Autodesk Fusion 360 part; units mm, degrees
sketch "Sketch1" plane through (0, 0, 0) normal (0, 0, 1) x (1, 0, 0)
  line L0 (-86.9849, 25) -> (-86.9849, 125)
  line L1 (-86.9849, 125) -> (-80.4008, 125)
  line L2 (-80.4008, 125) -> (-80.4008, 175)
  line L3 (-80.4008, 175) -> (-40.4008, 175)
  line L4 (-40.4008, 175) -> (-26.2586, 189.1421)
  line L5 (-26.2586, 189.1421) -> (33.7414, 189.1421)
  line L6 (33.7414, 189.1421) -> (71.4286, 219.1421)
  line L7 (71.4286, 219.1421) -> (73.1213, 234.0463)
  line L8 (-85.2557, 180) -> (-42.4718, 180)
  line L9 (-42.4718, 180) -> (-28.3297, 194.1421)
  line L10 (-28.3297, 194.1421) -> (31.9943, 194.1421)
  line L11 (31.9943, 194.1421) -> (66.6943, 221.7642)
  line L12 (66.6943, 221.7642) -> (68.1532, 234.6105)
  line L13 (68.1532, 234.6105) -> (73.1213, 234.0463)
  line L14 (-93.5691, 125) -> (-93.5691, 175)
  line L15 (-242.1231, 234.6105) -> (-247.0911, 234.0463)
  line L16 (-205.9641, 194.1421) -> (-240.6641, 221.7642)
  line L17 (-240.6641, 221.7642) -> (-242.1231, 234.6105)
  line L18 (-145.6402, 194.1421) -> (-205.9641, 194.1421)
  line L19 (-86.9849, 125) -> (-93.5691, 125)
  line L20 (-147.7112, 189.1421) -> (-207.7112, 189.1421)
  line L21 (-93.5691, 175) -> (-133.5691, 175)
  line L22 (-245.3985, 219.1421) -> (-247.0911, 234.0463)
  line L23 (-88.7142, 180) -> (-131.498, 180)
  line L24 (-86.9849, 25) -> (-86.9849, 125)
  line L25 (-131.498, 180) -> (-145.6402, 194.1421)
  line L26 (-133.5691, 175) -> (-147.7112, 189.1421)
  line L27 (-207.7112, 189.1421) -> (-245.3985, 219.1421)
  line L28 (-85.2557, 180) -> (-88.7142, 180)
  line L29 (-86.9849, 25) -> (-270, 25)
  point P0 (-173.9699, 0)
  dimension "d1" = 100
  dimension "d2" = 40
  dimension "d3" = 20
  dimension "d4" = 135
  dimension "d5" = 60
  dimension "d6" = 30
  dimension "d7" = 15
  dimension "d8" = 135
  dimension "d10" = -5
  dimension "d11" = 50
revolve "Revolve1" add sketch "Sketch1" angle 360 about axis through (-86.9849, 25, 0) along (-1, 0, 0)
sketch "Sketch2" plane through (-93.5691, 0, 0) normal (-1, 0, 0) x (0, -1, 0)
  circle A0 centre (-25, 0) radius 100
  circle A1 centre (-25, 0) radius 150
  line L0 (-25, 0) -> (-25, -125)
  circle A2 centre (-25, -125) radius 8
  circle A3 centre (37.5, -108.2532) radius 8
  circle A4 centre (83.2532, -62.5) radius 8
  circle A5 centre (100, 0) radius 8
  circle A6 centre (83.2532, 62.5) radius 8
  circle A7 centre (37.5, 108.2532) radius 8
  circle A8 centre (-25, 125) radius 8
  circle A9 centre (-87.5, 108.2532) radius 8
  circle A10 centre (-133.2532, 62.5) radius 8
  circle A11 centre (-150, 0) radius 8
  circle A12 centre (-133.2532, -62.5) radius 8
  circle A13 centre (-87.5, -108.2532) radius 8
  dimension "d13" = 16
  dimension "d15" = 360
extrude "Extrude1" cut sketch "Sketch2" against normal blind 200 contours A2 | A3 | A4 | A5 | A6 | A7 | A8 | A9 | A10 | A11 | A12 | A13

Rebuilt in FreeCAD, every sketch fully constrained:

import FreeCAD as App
import Part
import Sketcher

V = App.Vector
Q = App.Units.Quantity

doc = App.newDocument("Part")
body = doc.addObject("PartDesign::Body", "Body")

# Sketch on XY plane
sketch1 = body.newObject("Sketcher::SketchObject", "Sketch")
sketch1.AttachmentSupport = (doc.getObject("XY_Plane"), [""])
sketch1.MapMode = "FlatFace"
sketch1.addGeometry([
    Part.LineSegment(V(-93.6, 125, 0), V(-80.4, 125, 0)),  # 0
    Part.LineSegment(V(-80.4, 125, 0), V(-80.4, 175, 0)),  # 1
    Part.LineSegment(V(-80.4, 175, 0), V(-40.4, 175, 0)),  # 2
    Part.LineSegment(V(-40.4, 175, 0), V(-26.3, 189.1, 0)),  # 3
    Part.LineSegment(V(-26.3, 189.1, 0), V(33.7, 189.1, 0)),  # 4
    Part.LineSegment(V(33.7, 189.1, 0), V(71.4, 219.1, 0)),  # 5
    Part.LineSegment(V(71.4, 219.1, 0), V(73.1, 234, 0)),  # 6
    Part.LineSegment(V(73.1, 234, 0), V(68.2, 234.6, 0)),  # 7
    Part.LineSegment(V(68.2, 234.6, 0), V(66.7, 221.8, 0)),  # 8
    Part.LineSegment(V(66.7, 221.8, 0), V(32, 194.1, 0)),  # 9
    Part.LineSegment(V(32, 194.1, 0), V(-28.3, 194.1, 0)),  # 10
    Part.LineSegment(V(-28.3, 194.1, 0), V(-42.5, 180, 0)),  # 11
    Part.LineSegment(V(-42.5, 180, 0), V(-131.5, 180, 0)),  # 12
    Part.LineSegment(V(-131.5, 180, 0), V(-145.6, 194.1, 0)),  # 13
    Part.LineSegment(V(-145.6, 194.1, 0), V(-206, 194.1, 0)),  # 14
    Part.LineSegment(V(-206, 194.1, 0), V(-240.7, 221.8, 0)),  # 15
    Part.LineSegment(V(-240.7, 221.8, 0), V(-242.1, 234.6, 0)),  # 16
    Part.LineSegment(V(-242.1, 234.6, 0), V(-247.1, 234, 0)),  # 17
    Part.LineSegment(V(-247.1, 234, 0), V(-245.4, 219.1, 0)),  # 18
    Part.LineSegment(V(-245.4, 219.1, 0), V(-207.7, 189.1, 0)),  # 19
    Part.LineSegment(V(-207.7, 189.1, 0), V(-147.7, 189.1, 0)),  # 20
    Part.LineSegment(V(-147.7, 189.1, 0), V(-133.6, 175, 0)),  # 21
    Part.LineSegment(V(-133.6, 175, 0), V(-93.6, 175, 0)),  # 22
    Part.LineSegment(V(-93.6, 175, 0), V(-93.6, 125, 0)),  # 23
], False)
sketch1.addGeometry(Part.LineSegment(V(73.1, 25, 0), V(-247.1, 25, 0)), True)  # axis
sketch1.addConstraint([
    Sketcher.Constraint("Coincident", 0, 2, 1, 1),
    Sketcher.Constraint("Coincident", 1, 2, 2, 1),
    Sketcher.Constraint("Coincident", 2, 2, 3, 1),
    Sketcher.Constraint("Coincident", 3, 2, 4, 1),
    Sketcher.Constraint("Coincident", 4, 2, 5, 1),
    Sketcher.Constraint("Coincident", 5, 2, 6, 1),
    Sketcher.Constraint("Coincident", 6, 2, 7, 1),
    Sketcher.Constraint("Coincident", 7, 2, 8, 1),
    Sketcher.Constraint("Coincident", 8, 2, 9, 1),
    Sketcher.Constraint("Coincident", 9, 2, 10, 1),
    Sketcher.Constraint("Coincident", 10, 2, 11, 1),
    Sketcher.Constraint("Coincident", 11, 2, 12, 1),
    Sketcher.Constraint("Coincident", 12, 2, 13, 1),
    Sketcher.Constraint("Coincident", 13, 2, 14, 1),
    Sketcher.Constraint("Coincident", 14, 2, 15, 1),
    Sketcher.Constraint("Coincident", 15, 2, 16, 1),
    Sketcher.Constraint("Coincident", 16, 2, 17, 1),
    Sketcher.Constraint("Coincident", 17, 2, 18, 1),
    Sketcher.Constraint("Coincident", 18, 2, 19, 1),
    Sketcher.Constraint("Coincident", 19, 2, 20, 1),
    Sketcher.Constraint("Coincident", 20, 2, 21, 1),
    Sketcher.Constraint("Coincident", 21, 2, 22, 1),
    Sketcher.Constraint("Coincident", 22, 2, 23, 1),
    Sketcher.Constraint("Coincident", 23, 2, 0, 1),
    Sketcher.Constraint("Horizontal", 0),
    Sketcher.Constraint("Vertical", 1),
    Sketcher.Constraint("Horizontal", 2),
    Sketcher.Constraint("Horizontal", 4),
    Sketcher.Constraint("Horizontal", 10),
    Sketcher.Constraint("Horizontal", 12),
    Sketcher.Constraint("Horizontal", 14),
    Sketcher.Constraint("Horizontal", 20),
    Sketcher.Constraint("Horizontal", 22),
    Sketcher.Constraint("Vertical", 23),
    Sketcher.Constraint("Horizontal", 24),
    Sketcher.Constraint("Perpendicular", 6, 7),
    Sketcher.Constraint("Perpendicular", 7, 8),
    Sketcher.Constraint("Parallel", 5, 9),
    Sketcher.Constraint("Parallel", 3, 11),
    Sketcher.Constraint("Perpendicular", 11, 13),
    Sketcher.Constraint("Perpendicular", 16, 17),
    Sketcher.Constraint("Perpendicular", 17, 18),
    Sketcher.Constraint("Parallel", 15, 19),
    Sketcher.Constraint("Parallel", 13, 21),
    Sketcher.Constraint("Horizontal", 10, 2, 13, 2),
    Sketcher.Constraint("Horizontal", 8, 2, 15, 2),
    Sketcher.Constraint("Horizontal", 7, 2, 16, 2),
    Sketcher.Constraint("Horizontal", 6, 2, 17, 2),
    Sketcher.Constraint("Horizontal", 5, 2, 18, 2),
    Sketcher.Constraint("Horizontal", 4, 2, 19, 2),
    Sketcher.Constraint("Horizontal", 2, 2, 21, 2),
    Sketcher.Constraint("Vertical", 6, 2, 24, 1),
    Sketcher.Constraint("Vertical", 17, 2, 24, 2),
    Sketcher.Constraint("Equal", 10, 14),
    Sketcher.Constraint("Equal", 4, 20),
    Sketcher.Constraint("Equal", 2, 22),
    Sketcher.Constraint("Equal", 3, 11),
    Sketcher.Constraint("Equal", 11, 13),
    Sketcher.Constraint("Equal", 9, 15),
    Sketcher.Constraint("Equal", 8, 16),
    Sketcher.Constraint("DistanceX", 2, 1, 2, 2, 40.0),
    Sketcher.Constraint("DistanceX", 4, 1, 4, 2, 60.0),
    Sketcher.Constraint("DistanceY", 1, 1, 1, 2, 50.0),
    Sketcher.Constraint("Distance", 3, 20.0),
    Sketcher.Constraint("Distance", 6, 15.0),
    Sketcher.Constraint("Distance", 7, 5.0),
    Sketcher.Constraint("DistanceY", 4, 2, 5, 2, 30.0),
    Sketcher.Constraint("DistanceY", 4, 2, 9, 2, 5.0),
    Sketcher.Constraint("DistanceY", 24, 1, 0, 2, 100.0),
    Sketcher.Constraint("DistanceY", -1, 1, 0, 2, 125.0),
    Sketcher.Constraint("Angle", 5, Q("38.5207 deg")),
    Sketcher.Constraint("Angle", 6, Q("83.5206 deg")),
    Sketcher.Constraint("DistanceX", 9, 2, 8, 2, 34.7),
    Sketcher.Constraint("DistanceX", 10, 2, 10, 1, 60.324),
    Sketcher.Constraint("DistanceX", 0, 1, 0, 2, 13.1683),
    Sketcher.Constraint("DistanceX", 12, 2, -1, 1, 131.498),
])
revolution = body.newObject("PartDesign::Revolution", "Revolution")
revolution.Profile = sketch1
revolution.ReferenceAxis = (sketch1, ["Axis0"])
revolution.Angle = 360

# Sketch on YZ plane
sketch2 = body.newObject("Sketcher::SketchObject", "Sketch001")
sketch2.AttachmentSupport = (doc.getObject("YZ_Plane"), [""])
sketch2.MapMode = "FlatFace"
sketch2.AttachmentOffset = App.Placement(V(0, 0, -93.5691), App.Rotation())
sketch2.addGeometry([
    Part.Circle(V(25, -125, 0), V(0, 0, 1), 8),  # 0
    Part.Circle(V(-38, -108, 0), V(0, 0, 1), 8),  # 1
    Part.Circle(V(-83, -62, 0), V(0, 0, 1), 8),  # 2
    Part.Circle(V(-100, 0, 0), V(0, 0, 1), 8),  # 3
    Part.Circle(V(-83, 62, 0), V(0, 0, 1), 8),  # 4
    Part.Circle(V(-38, 108, 0), V(0, 0, 1), 8),  # 5
    Part.Circle(V(25, 125, 0), V(0, 0, 1), 8),  # 6
    Part.Circle(V(88, 108, 0), V(0, 0, 1), 8),  # 7
    Part.Circle(V(133, 62, 0), V(0, 0, 1), 8),  # 8
    Part.Circle(V(150, 0, 0), V(0, 0, 1), 8),  # 9
    Part.Circle(V(133, -62, 0), V(0, 0, 1), 8),  # 10
    Part.Circle(V(88, -108, 0), V(0, 0, 1), 8),  # 11
], False)
sketch2.addConstraint([
    Sketcher.Constraint("Equal", 0, 1),
    Sketcher.Constraint("Equal", 1, 2),
    Sketcher.Constraint("Equal", 2, 3),
    Sketcher.Constraint("Equal", 3, 4),
    Sketcher.Constraint("Equal", 4, 5),
    Sketcher.Constraint("Equal", 5, 6),
    Sketcher.Constraint("Equal", 6, 7),
    Sketcher.Constraint("Equal", 7, 8),
    Sketcher.Constraint("Equal", 8, 9),
    Sketcher.Constraint("Equal", 9, 10),
    Sketcher.Constraint("Equal", 10, 11),
    Sketcher.Constraint("Symmetric", 2, 3, 4, 3, -1),
    Sketcher.Constraint("Symmetric", 1, 3, 5, 3, -1),
    Sketcher.Constraint("Symmetric", 0, 3, 6, 3, -1),
    Sketcher.Constraint("Symmetric", 8, 3, 10, 3, -1),
    Sketcher.Constraint("Symmetric", 7, 3, 11, 3, -1),
    Sketcher.Constraint("PointOnObject", 3, 3, -1),
    Sketcher.Constraint("PointOnObject", 9, 3, -1),
    Sketcher.Constraint("Horizontal", 5, 3, 7, 3),
    Sketcher.Constraint("Horizontal", 4, 3, 8, 3),
    Sketcher.Constraint("Diameter", 0, 16.0),
    Sketcher.Constraint("DistanceX", -1, 1, 0, 3, 25.0),
    Sketcher.Constraint("DistanceY", 0, 3, -1, 1, 125.0),
    Sketcher.Constraint("DistanceX", 3, 3, -1, 1, 100.0),
    Sketcher.Constraint("DistanceX", -1, 1, 9, 3, 150.0),
    Sketcher.Constraint("DistanceY", 2, 3, 4, 3, 125.0),
    Sketcher.Constraint("DistanceX", 5, 3, 7, 3, 125.0),
    Sketcher.Constraint("DistanceX", 1, 3, -1, 1, 37.5),
    Sketcher.Constraint("DistanceY", 1, 3, -1, 1, 108.2532),
    Sketcher.Constraint("DistanceX", 2, 3, -1, 1, 83.2532),
    Sketcher.Constraint("DistanceX", -1, 1, 8, 3, 133.2532),
])
pocket1 = body.newObject("PartDesign::Pocket", "Pocket")
pocket1.Profile = sketch2
pocket1.Length = 200
pocket1.Reversed = True

doc.recompute()
